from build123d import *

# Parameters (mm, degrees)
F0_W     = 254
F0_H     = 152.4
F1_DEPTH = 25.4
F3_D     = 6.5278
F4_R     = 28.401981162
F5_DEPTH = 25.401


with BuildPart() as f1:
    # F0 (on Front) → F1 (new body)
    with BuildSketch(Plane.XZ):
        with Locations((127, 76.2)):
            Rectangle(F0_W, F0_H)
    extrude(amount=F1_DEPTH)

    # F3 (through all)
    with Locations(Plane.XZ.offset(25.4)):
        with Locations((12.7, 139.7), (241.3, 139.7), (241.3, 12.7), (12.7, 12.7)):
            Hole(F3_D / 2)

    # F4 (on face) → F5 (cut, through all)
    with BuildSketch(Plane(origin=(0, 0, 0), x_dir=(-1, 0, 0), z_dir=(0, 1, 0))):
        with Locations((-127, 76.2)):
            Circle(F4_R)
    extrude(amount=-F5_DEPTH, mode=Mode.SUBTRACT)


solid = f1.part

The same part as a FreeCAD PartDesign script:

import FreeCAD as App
import Part
import Sketcher
Q = App.Units.Quantity

doc = App.newDocument("Part")
body = doc.addObject("PartDesign::Body", "Body")

sketch1 = doc.addObject("Sketcher::SketchObject", "Sketch")
body.addObject(sketch1)
sketch1.AttachmentSupport = (doc.XZ_Plane, [""])
sketch1.MapMode = "FlatFace"
sketch1.addGeometry(Part.LineSegment(App.Vector(0, 152, 0), App.Vector(0, 0, 0)), False)
sketch1.addGeometry(Part.LineSegment(App.Vector(0, 0, 0), App.Vector(254, 0, 0)), False)
sketch1.addGeometry(Part.LineSegment(App.Vector(254, 0, 0), App.Vector(254, 152, 0)), False)
sketch1.addGeometry(Part.LineSegment(App.Vector(254, 152, 0), App.Vector(0, 152, 0)), False)
sketch1.addConstraint(Sketcher.Constraint("Coincident", 0, 2, 1, 1))
sketch1.addConstraint(Sketcher.Constraint("Coincident", 1, 2, 2, 1))
sketch1.addConstraint(Sketcher.Constraint("Coincident", 2, 2, 3, 1))
sketch1.addConstraint(Sketcher.Constraint("Coincident", 3, 2, 0, 1))
sketch1.addConstraint(Sketcher.Constraint("Vertical", 0))
sketch1.addConstraint(Sketcher.Constraint("Horizontal", 1))
sketch1.addConstraint(Sketcher.Constraint("Vertical", 2))
sketch1.addConstraint(Sketcher.Constraint("Horizontal", 3))
sketch1.addConstraint(Sketcher.Constraint("Coincident", 0, 2, -1, 1))
sketch1.addConstraint(Sketcher.Constraint("DistanceX", 1, 1, 1, 2, Q("10 in")))
sketch1.addConstraint(Sketcher.Constraint("DistanceY", 0, 2, 0, 1, Q("6 in")))
pad1 = doc.addObject("PartDesign::Pad", "Pad")
body.addObject(pad1)
pad1.Profile = sketch1
pad1.Length = Q("1 in")

sketch2 = doc.addObject("Sketcher::SketchObject", "Sketch001")
body.addObject(sketch2)
sketch2.AttachmentSupport = (doc.XZ_Plane, [""])
sketch2.MapMode = "FlatFace"
sketch2.AttachmentOffset = App.Placement(App.Vector(0, 0, 1 * 25.4), App.Rotation())
sketch2.addGeometry(Part.Circle(App.Vector(12.7, 139.7, 0), App.Vector(0, 0, 1), 3.3), False)
sketch2.addGeometry(Part.Circle(App.Vector(241.3, 139.7, 0), App.Vector(0, 0, 1), 3.3), False)
sketch2.addGeometry(Part.Circle(App.Vector(241.3, 12.7, 0), App.Vector(0, 0, 1), 3.3), False)
sketch2.addGeometry(Part.Circle(App.Vector(12.7, 12.7, 0), App.Vector(0, 0, 1), 3.3), False)
sketch2.addConstraint(Sketcher.Constraint("Equal", 0, 1))
sketch2.addConstraint(Sketcher.Constraint("Equal", 1, 2))
sketch2.addConstraint(Sketcher.Constraint("Equal", 2, 3))
sketch2.addConstraint(Sketcher.Constraint("Horizontal", 0, 3, 1, 3))
sketch2.addConstraint(Sketcher.Constraint("Horizontal", 2, 3, 3, 3))
sketch2.addConstraint(Sketcher.Constraint("Vertical", 1, 3, 2, 3))
sketch2.addConstraint(Sketcher.Constraint("Vertical", 0, 3, 3, 3))
sketch2.addConstraint(Sketcher.Constraint("Diameter", 0, Q("0.257 in")))
sketch2.addConstraint(Sketcher.Constraint("DistanceX", 0, 3, 1, 3, Q("9 in")))
sketch2.addConstraint(Sketcher.Constraint("DistanceY", 2, 3, 1, 3, Q("5 in")))
sketch2.addConstraint(Sketcher.Constraint("DistanceX", -1, 1, 0, 3, Q("0.5 in")))
sketch2.addConstraint(Sketcher.Constraint("DistanceY", -1, 1, 0, 3, Q("5.5 in")))
doc.recompute()
hole = doc.addObject("PartDesign::Hole", "Hole")
body.addObject(hole)
hole.Profile = sketch2
hole.ThreadType = "None"
hole.Diameter = Q("0.257 in")
hole.DepthType = "ThroughAll"

sketch3 = doc.addObject("Sketcher::SketchObject", "Sketch002")
body.addObject(sketch3)
sketch3.AttachmentSupport = (doc.XZ_Plane, [""])
sketch3.MapMode = "FlatFace"
sketch3.addGeometry(Part.Circle(App.Vector(127, 76, 0), App.Vector(0, 0, 1), 28), False)
sketch3.addConstraint(Sketcher.Constraint("DistanceX", -1, 1, 0, 3, Q("5 in")))
sketch3.addConstraint(Sketcher.Constraint("DistanceY", -1, 1, 0, 3, Q("3 in")))
sketch3.addConstraint(Sketcher.Constraint("Diameter", 0, 56.803962))
pocket1 = doc.addObject("PartDesign::Pocket", "Pocket")
body.addObject(pocket1)
pocket1.Profile = sketch3
pocket1.Type = "ThroughAll"
pocket1.Reversed = True

doc.recompute()
